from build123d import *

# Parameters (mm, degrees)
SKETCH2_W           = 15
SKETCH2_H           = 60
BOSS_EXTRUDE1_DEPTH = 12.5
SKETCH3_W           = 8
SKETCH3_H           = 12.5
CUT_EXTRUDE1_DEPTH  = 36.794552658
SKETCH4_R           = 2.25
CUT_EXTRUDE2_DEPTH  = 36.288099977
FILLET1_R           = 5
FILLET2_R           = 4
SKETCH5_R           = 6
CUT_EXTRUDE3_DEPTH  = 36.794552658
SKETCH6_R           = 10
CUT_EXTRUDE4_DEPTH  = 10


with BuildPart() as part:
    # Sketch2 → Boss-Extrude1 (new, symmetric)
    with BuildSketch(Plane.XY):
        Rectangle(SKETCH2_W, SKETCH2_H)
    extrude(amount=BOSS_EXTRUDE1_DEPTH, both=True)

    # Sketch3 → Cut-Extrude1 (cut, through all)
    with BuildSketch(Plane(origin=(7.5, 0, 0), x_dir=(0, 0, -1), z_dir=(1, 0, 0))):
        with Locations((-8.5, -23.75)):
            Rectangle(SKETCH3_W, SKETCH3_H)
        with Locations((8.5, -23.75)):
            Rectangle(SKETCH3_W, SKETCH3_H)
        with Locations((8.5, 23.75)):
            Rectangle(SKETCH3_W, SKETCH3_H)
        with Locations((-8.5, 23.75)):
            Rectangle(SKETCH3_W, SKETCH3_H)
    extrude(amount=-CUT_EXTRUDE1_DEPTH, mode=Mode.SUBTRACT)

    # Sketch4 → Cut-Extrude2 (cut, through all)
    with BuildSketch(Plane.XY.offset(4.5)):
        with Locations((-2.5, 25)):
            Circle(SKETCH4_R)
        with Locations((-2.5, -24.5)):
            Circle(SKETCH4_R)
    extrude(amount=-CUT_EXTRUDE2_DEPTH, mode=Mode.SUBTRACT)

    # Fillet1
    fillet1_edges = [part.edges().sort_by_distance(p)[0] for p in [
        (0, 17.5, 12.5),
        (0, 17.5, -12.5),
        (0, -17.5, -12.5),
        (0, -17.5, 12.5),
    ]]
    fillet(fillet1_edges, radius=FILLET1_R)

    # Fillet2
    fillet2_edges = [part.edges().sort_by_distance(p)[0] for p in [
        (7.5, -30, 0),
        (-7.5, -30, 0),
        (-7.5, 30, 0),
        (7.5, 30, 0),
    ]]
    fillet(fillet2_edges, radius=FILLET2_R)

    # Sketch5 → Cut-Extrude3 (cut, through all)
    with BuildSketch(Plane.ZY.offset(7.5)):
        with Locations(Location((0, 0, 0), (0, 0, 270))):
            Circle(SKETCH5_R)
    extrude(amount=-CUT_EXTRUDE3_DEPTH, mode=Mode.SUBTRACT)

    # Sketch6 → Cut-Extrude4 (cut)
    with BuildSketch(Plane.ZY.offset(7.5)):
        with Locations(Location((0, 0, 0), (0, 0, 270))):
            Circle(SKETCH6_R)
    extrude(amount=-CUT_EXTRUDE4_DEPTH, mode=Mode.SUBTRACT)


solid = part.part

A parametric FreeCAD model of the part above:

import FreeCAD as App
import Part
import Sketcher


def edges_at(feature, points):
    """Names of the edges that pass closest to the given points."""
    edges = feature.Shape.Edges
    near = lambda p: min(range(len(edges)), key=lambda i: edges[i].distToShape(Part.Vertex(*p))[0])
    return sorted({f"Edge{near(p) + 1}" for p in points})


def add_polygon(sketch, points):
    """Adds a closed chain of lines whose ends are joined by coincident constraints."""
    first, n = sketch.GeometryCount, len(points)
    for a, b in zip(points, points[1:] + points[:1]):
        sketch.addGeometry(Part.LineSegment(App.Vector(*a, 0), App.Vector(*b, 0)), False)
    for i in range(n):
        sketch.addConstraint(Sketcher.Constraint("Coincident", first + i, 2, first + (i + 1) % n, 1))

doc = App.newDocument("Part")
body = doc.addObject("PartDesign::Body", "Body")

sketch1 = doc.addObject("Sketcher::SketchObject", "Sketch")
body.addObject(sketch1)
sketch1.AttachmentSupport = (doc.XY_Plane, [""])
sketch1.MapMode = "FlatFace"
add_polygon(sketch1, [(-8, 30), (-8, -30), (8, -30), (8, 30)])
sketch1.addConstraint(Sketcher.Constraint("Vertical", 0))
sketch1.addConstraint(Sketcher.Constraint("Horizontal", 1))
sketch1.addConstraint(Sketcher.Constraint("Vertical", 2))
sketch1.addConstraint(Sketcher.Constraint("Horizontal", 3))
sketch1.addConstraint(Sketcher.Constraint("Symmetric", 0, 2, 2, 2, -1, 1))
sketch1.addConstraint(Sketcher.Constraint("DistanceX", 1, 1, 1, 2, 15.0))
sketch1.addConstraint(Sketcher.Constraint("DistanceY", 0, 2, 0, 1, 60.0))
pad1 = doc.addObject("PartDesign::Pad", "Pad")
body.addObject(pad1)
pad1.Profile = sketch1
pad1.Length = 25
pad1.Midplane = True

sketch2 = doc.addObject("Sketcher::SketchObject", "Sketch001")
body.addObject(sketch2)
sketch2.AttachmentSupport = (doc.YZ_Plane, [""])
sketch2.MapMode = "FlatFace"
sketch2.AttachmentOffset = App.Placement(App.Vector(0, 0, 7.5), App.Rotation())
add_polygon(sketch2, [(-18, 12), (-30, 12), (-30, 4), (-18, 4)])
add_polygon(sketch2, [(-18, -4), (-30, -4), (-30, -12), (-18, -12)])
add_polygon(sketch2, [(30, -4), (18, -4), (18, -12), (30, -12)])
add_polygon(sketch2, [(30, 12), (18, 12), (18, 4), (30, 4)])
sketch2.addConstraint(Sketcher.Constraint("Horizontal", 0))
sketch2.addConstraint(Sketcher.Constraint("Vertical", 1))
sketch2.addConstraint(Sketcher.Constraint("Horizontal", 2))
sketch2.addConstraint(Sketcher.Constraint("Vertical", 3))
sketch2.addConstraint(Sketcher.Constraint("Horizontal", 4))
sketch2.addConstraint(Sketcher.Constraint("Vertical", 5))
sketch2.addConstraint(Sketcher.Constraint("Horizontal", 6))
sketch2.addConstraint(Sketcher.Constraint("Vertical", 7))
sketch2.addConstraint(Sketcher.Constraint("Horizontal", 8))
sketch2.addConstraint(Sketcher.Constraint("Vertical", 9))
sketch2.addConstraint(Sketcher.Constraint("Horizontal", 10))
sketch2.addConstraint(Sketcher.Constraint("Vertical", 11))
sketch2.addConstraint(Sketcher.Constraint("Horizontal", 12))
sketch2.addConstraint(Sketcher.Constraint("Vertical", 13))
sketch2.addConstraint(Sketcher.Constraint("Horizontal", 14))
sketch2.addConstraint(Sketcher.Constraint("Vertical", 15))
sketch2.addConstraint(Sketcher.Constraint("Symmetric", 2, 2, 8, 2, -1, 1))
sketch2.addConstraint(Sketcher.Constraint("Symmetric", 0, 2, 10, 2, -1, 1))
sketch2.addConstraint(Sketcher.Constraint("Symmetric", 6, 2, 12, 2, -1, 1))
sketch2.addConstraint(Sketcher.Constraint("Symmetric", 4, 2, 14, 2, -1, 1))
sketch2.addConstraint(Sketcher.Constraint("Symmetric", 7, 2, 8, 2, -2))
sketch2.addConstraint(Sketcher.Constraint("Symmetric", 5, 2, 10, 2, -2))
sketch2.addConstraint(Sketcher.Constraint("DistanceY", 1, 2, 1, 1, 8.0))
sketch2.addConstraint(Sketcher.Constraint("DistanceX", 0, 2, 0, 1, 12.5))
sketch2.addConstraint(Sketcher.Constraint("DistanceX", 0, 2, -1, 1, 30.0))
sketch2.addConstraint(Sketcher.Constraint("DistanceY", 4, 2, 1, 2, 9.0))
pocket1 = doc.addObject("PartDesign::Pocket", "Pocket")
body.addObject(pocket1)
pocket1.Profile = sketch2
pocket1.Type = "ThroughAll"

sketch3 = doc.addObject("Sketcher::SketchObject", "Sketch002")
body.addObject(sketch3)
sketch3.AttachmentSupport = (doc.XY_Plane, [""])
sketch3.MapMode = "FlatFace"
sketch3.AttachmentOffset = App.Placement(App.Vector(0, 0, 4.5), App.Rotation())
sketch3.addGeometry(Part.Circle(App.Vector(-2.5, 25, 0), App.Vector(0, 0, 1), 2.2), False)
sketch3.addGeometry(Part.Circle(App.Vector(-2.5, -24.5, 0), App.Vector(0, 0, 1), 2.2), False)
sketch3.addConstraint(Sketcher.Constraint("Equal", 0, 1))
sketch3.addConstraint(Sketcher.Constraint("Vertical", 0, 3, 1, 3))
sketch3.addConstraint(Sketcher.Constraint("Diameter", 0, 4.5))
sketch3.addConstraint(Sketcher.Constraint("DistanceY", -1, 1, 0, 3, 25.0))
sketch3.addConstraint(Sketcher.Constraint("DistanceX", 0, 3, -1, 1, 2.5))
sketch3.addConstraint(Sketcher.Constraint("DistanceY", 1, 3, -1, 1, 24.5))
pocket2 = doc.addObject("PartDesign::Pocket", "Pocket001")
body.addObject(pocket2)
pocket2.Profile = sketch3
pocket2.Type = "ThroughAll"
doc.recompute()

fillet = doc.addObject("PartDesign::Fillet", "Fillet")
body.addObject(fillet)
fillet.Base = (pocket2, edges_at(pocket2, [
    (0, 17.5, 12.5),
    (0, 17.5, -12.5),
    (0, -17.5, -12.5),
    (0, -17.5, 12.5),
]))
fillet.Radius = 5
doc.recompute()

fillet2 = doc.addObject("PartDesign::Fillet", "Fillet001")
body.addObject(fillet2)
fillet2.Base = (fillet, edges_at(fillet, [
    (7.5, -30, 0),
    (-7.5, -30, 0),
    (-7.5, 30, 0),
    (7.5, 30, 0),
]))
fillet2.Radius = 4

sketch4 = doc.addObject("Sketcher::SketchObject", "Sketch003")
body.addObject(sketch4)
sketch4.AttachmentSupport = (doc.YZ_Plane, [""])
sketch4.MapMode = "FlatFace"
sketch4.AttachmentOffset = App.Placement(App.Vector(0, 0, -7.5), App.Rotation())
sketch4.addGeometry(Part.Circle(App.Vector(0, 0, 0), App.Vector(0, 0, 1), 6), False)
sketch4.addConstraint(Sketcher.Constraint("Coincident", 0, 3, -1, 1))
sketch4.addConstraint(Sketcher.Constraint("Diameter", 0, 12.0))
pocket3 = doc.addObject("PartDesign::Pocket", "Pocket002")
body.addObject(pocket3)
pocket3.Profile = sketch4
pocket3.Type = "ThroughAll"
pocket3.Reversed = True

sketch5 = doc.addObject("Sketcher::SketchObject", "Sketch004")
body.addObject(sketch5)
sketch5.AttachmentSupport = (doc.YZ_Plane, [""])
sketch5.MapMode = "FlatFace"
sketch5.AttachmentOffset = App.Placement(App.Vector(0, 0, -7.5), App.Rotation())
sketch5.addGeometry(Part.Circle(App.Vector(0, 0, 0), App.Vector(0, 0, 1), 10), False)
sketch5.addConstraint(Sketcher.Constraint("Coincident", 0, 3, -1, 1))
sketch5.addConstraint(Sketcher.Constraint("Diameter", 0, 20.0))
pocket4 = doc.addObject("PartDesign::Pocket", "Pocket003")
body.addObject(pocket4)
pocket4.Profile = sketch5
pocket4.Length = 10
pocket4.Reversed = True

doc.recompute()
